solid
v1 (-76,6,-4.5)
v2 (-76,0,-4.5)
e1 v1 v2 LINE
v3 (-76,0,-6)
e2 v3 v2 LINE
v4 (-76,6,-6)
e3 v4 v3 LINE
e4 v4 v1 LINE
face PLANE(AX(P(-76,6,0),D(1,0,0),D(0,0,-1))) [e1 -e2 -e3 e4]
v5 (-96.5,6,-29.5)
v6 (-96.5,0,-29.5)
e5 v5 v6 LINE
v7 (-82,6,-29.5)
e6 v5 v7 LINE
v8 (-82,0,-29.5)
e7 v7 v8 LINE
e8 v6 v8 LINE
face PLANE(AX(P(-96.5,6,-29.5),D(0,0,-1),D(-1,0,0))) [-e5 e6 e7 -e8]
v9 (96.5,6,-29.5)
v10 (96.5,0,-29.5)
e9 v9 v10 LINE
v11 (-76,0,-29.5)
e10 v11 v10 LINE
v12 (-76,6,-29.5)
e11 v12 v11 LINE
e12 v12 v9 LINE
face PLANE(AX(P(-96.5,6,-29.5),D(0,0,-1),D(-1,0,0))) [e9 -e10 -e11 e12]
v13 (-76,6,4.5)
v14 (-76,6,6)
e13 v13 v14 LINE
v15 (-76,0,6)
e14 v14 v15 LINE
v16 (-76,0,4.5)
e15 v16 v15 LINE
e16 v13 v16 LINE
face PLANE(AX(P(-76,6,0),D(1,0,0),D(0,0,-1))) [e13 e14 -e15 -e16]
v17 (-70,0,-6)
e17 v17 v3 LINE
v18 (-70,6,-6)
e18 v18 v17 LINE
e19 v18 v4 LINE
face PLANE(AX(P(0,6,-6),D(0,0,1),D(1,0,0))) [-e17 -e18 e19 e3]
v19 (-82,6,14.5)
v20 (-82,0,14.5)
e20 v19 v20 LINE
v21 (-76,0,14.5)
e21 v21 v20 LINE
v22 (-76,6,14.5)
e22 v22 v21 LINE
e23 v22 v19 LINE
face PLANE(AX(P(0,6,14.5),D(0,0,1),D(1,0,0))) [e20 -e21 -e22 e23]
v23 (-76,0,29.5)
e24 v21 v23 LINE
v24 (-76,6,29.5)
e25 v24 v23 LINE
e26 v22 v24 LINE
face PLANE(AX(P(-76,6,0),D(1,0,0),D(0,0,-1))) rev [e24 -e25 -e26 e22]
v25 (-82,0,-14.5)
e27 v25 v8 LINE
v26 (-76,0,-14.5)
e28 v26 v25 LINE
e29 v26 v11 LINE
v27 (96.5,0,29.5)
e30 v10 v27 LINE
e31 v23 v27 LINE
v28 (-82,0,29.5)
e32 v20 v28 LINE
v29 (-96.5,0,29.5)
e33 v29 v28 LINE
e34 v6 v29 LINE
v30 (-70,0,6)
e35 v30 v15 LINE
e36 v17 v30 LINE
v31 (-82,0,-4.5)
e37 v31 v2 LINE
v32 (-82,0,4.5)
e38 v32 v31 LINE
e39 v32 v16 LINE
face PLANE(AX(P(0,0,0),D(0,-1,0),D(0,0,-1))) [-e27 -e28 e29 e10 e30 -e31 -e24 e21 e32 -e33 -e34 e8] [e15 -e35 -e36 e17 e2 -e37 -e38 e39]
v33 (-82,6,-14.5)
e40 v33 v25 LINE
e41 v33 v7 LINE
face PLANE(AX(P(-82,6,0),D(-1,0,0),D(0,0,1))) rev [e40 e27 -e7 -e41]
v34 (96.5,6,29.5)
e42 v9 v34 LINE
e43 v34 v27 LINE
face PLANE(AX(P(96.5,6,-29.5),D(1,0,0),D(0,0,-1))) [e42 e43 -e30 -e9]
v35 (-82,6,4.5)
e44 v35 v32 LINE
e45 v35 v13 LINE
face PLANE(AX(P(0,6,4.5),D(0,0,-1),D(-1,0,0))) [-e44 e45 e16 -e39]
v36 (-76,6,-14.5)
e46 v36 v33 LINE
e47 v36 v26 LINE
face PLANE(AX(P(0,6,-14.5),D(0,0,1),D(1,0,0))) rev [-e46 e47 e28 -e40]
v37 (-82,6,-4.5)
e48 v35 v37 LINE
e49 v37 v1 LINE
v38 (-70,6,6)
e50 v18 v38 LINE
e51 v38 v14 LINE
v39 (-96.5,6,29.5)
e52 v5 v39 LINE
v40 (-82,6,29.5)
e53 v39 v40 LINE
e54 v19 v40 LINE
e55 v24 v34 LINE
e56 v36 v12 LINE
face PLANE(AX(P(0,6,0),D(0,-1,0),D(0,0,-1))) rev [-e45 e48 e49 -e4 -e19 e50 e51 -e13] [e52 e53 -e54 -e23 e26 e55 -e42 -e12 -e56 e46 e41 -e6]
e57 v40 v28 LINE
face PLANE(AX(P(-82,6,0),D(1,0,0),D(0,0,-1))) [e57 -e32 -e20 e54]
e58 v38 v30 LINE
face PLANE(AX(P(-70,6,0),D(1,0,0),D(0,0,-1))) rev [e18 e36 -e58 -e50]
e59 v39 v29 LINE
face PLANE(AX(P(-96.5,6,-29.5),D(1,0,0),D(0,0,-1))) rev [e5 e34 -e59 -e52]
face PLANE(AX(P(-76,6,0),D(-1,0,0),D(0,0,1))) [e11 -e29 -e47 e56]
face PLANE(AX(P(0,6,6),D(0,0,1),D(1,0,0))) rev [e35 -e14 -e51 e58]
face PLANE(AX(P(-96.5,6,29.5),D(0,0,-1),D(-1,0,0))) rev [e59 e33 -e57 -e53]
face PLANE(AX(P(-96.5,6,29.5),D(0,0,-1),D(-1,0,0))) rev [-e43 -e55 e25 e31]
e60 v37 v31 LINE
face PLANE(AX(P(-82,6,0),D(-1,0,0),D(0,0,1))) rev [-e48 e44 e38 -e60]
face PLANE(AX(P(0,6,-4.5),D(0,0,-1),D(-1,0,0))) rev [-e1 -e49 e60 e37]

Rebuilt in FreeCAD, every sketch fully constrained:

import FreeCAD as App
import Part
import Sketcher

V = App.Vector

doc = App.newDocument("Part")
body = doc.addObject("PartDesign::Body", "Body")

# Sketch on XZ plane
sketch1 = body.newObject("Sketcher::SketchObject", "Sketch")
sketch1.AttachmentSupport = (doc.getObject("XZ_Plane"), [""])
sketch1.MapMode = "FlatFace"
sketch1.addGeometry(Part.LineSegment(V(-96, -30, 0), V(-96, 30, 0)), False)
sketch1.addGeometry(Part.LineSegment(V(-96, 30, 0), V(96, 30, 0)), False)
sketch1.addGeometry(Part.LineSegment(V(96, 30, 0), V(96, -30, 0)), False)
sketch1.addGeometry(Part.LineSegment(V(96, -30, 0), V(-96, -30, 0)), False)
sketch1.addConstraint(Sketcher.Constraint("Coincident", 0, 2, 1, 1))
sketch1.addConstraint(Sketcher.Constraint("Coincident", 1, 2, 2, 1))
sketch1.addConstraint(Sketcher.Constraint("Coincident", 2, 2, 3, 1))
sketch1.addConstraint(Sketcher.Constraint("Coincident", 3, 2, 0, 1))
sketch1.addConstraint(Sketcher.Constraint("Vertical", 0))
sketch1.addConstraint(Sketcher.Constraint("Horizontal", 1))
sketch1.addConstraint(Sketcher.Constraint("Vertical", 2))
sketch1.addConstraint(Sketcher.Constraint("Horizontal", 3))
sketch1.addConstraint(Sketcher.Constraint("Symmetric", 0, 2, 2, 2, -1, 1))
sketch1.addConstraint(Sketcher.Constraint("DistanceX", 1, 1, 1, 2, 193.0))
sketch1.addConstraint(Sketcher.Constraint("DistanceY", 0, 1, 0, 2, 59.0))
pad1 = body.newObject("PartDesign::Pad", "Pad")
pad1.Profile = sketch1
pad1.Length = 6
pad1.Reversed = True

# Sketch on XZ plane
sketch2 = body.newObject("Sketcher::SketchObject", "Sketch001")
sketch2.AttachmentSupport = (doc.getObject("XZ_Plane"), [""])
sketch2.MapMode = "FlatFace"
sketch2.addGeometry(Part.LineSegment(V(-76, -29.5, 0), V(-76, -14.5, 0)), False)
sketch2.addGeometry(Part.LineSegment(V(-76, -14.5, 0), V(-82, -14.5, 0)), False)
sketch2.addGeometry(Part.LineSegment(V(-82, -14.5, 0), V(-82, -29.5, 0)), False)
sketch2.addGeometry(Part.LineSegment(V(-82, -29.5, 0), V(-76, -29.5, 0)), False)
sketch2.addGeometry(Part.LineSegment(V(-76, 14.5, 0), V(-76, 29.5, 0)), False)
sketch2.addGeometry(Part.LineSegment(V(-76, 29.5, 0), V(-82, 29.5, 0)), False)
sketch2.addGeometry(Part.LineSegment(V(-82, 29.5, 0), V(-82, 14.5, 0)), False)
sketch2.addGeometry(Part.LineSegment(V(-82, 14.5, 0), V(-76, 14.5, 0)), False)
sketch2.addGeometry(Part.LineSegment(V(-76, 4.5, 0), V(-82, 4.5, 0)), False)
sketch2.addGeometry(Part.LineSegment(V(-82, 4.5, 0), V(-82, -4.5, 0)), False)
sketch2.addGeometry(Part.LineSegment(V(-82, -4.5, 0), V(-76, -4.5, 0)), False)
sketch2.addGeometry(Part.LineSegment(V(-76, -4.5, 0), V(-76, -6, 0)), False)
sketch2.addGeometry(Part.LineSegment(V(-76, -6, 0), V(-70, -6, 0)), False)
sketch2.addGeometry(Part.LineSegment(V(-70, -6, 0), V(-70, 6, 0)), False)
sketch2.addGeometry(Part.LineSegment(V(-70, 6, 0), V(-76, 6, 0)), False)
sketch2.addGeometry(Part.LineSegment(V(-76, 6, 0), V(-76, 4.5, 0)), False)
sketch2.addConstraint(Sketcher.Constraint("Coincident", 0, 2, 1, 1))
sketch2.addConstraint(Sketcher.Constraint("Coincident", 1, 2, 2, 1))
sketch2.addConstraint(Sketcher.Constraint("Coincident", 2, 2, 3, 1))
sketch2.addConstraint(Sketcher.Constraint("Coincident", 3, 2, 0, 1))
sketch2.addConstraint(Sketcher.Constraint("Coincident", 4, 2, 5, 1))
sketch2.addConstraint(Sketcher.Constraint("Coincident", 5, 2, 6, 1))
sketch2.addConstraint(Sketcher.Constraint("Coincident", 6, 2, 7, 1))
sketch2.addConstraint(Sketcher.Constraint("Coincident", 7, 2, 4, 1))
sketch2.addConstraint(Sketcher.Constraint("Coincident", 8, 2, 9, 1))
sketch2.addConstraint(Sketcher.Constraint("Coincident", 9, 2, 10, 1))
sketch2.addConstraint(Sketcher.Constraint("Coincident", 10, 2, 11, 1))
sketch2.addConstraint(Sketcher.Constraint("Coincident", 11, 2, 12, 1))
sketch2.addConstraint(Sketcher.Constraint("Coincident", 12, 2, 13, 1))
sketch2.addConstraint(Sketcher.Constraint("Coincident", 13, 2, 14, 1))
sketch2.addConstraint(Sketcher.Constraint("Coincident", 14, 2, 15, 1))
sketch2.addConstraint(Sketcher.Constraint("Coincident", 15, 2, 8, 1))
sketch2.addConstraint(Sketcher.Constraint("Vertical", 0))
sketch2.addConstraint(Sketcher.Constraint("Horizontal", 1))
sketch2.addConstraint(Sketcher.Constraint("Vertical", 2))
sketch2.addConstraint(Sketcher.Constraint("Horizontal", 3))
sketch2.addConstraint(Sketcher.Constraint("Vertical", 4))
sketch2.addConstraint(Sketcher.Constraint("Horizontal", 5))
sketch2.addConstraint(Sketcher.Constraint("Vertical", 6))
sketch2.addConstraint(Sketcher.Constraint("Horizontal", 7))
sketch2.addConstraint(Sketcher.Constraint("Horizontal", 8))
sketch2.addConstraint(Sketcher.Constraint("Vertical", 9))
sketch2.addConstraint(Sketcher.Constraint("Horizontal", 10))
sketch2.addConstraint(Sketcher.Constraint("Vertical", 11))
sketch2.addConstraint(Sketcher.Constraint("Horizontal", 12))
sketch2.addConstraint(Sketcher.Constraint("Vertical", 13))
sketch2.addConstraint(Sketcher.Constraint("Horizontal", 14))
sketch2.addConstraint(Sketcher.Constraint("Vertical", 15))
sketch2.addConstraint(Sketcher.Constraint("Symmetric", 3, 2, 4, 2, -1))
sketch2.addConstraint(Sketcher.Constraint("Symmetric", 1, 2, 6, 2, -1))
sketch2.addConstraint(Sketcher.Constraint("Symmetric", 11, 2, 14, 2, -1))
sketch2.addConstraint(Sketcher.Constraint("Vertical", 6, 2, 8, 2))
sketch2.addConstraint(Sketcher.Constraint("Vertical", 7, 2, 10, 2))
sketch2.addConstraint(Sketcher.Constraint("Equal", 10, 12))
sketch2.addConstraint(Sketcher.Constraint("Equal", 11, 15))
sketch2.addConstraint(Sketcher.Constraint("DistanceX", 1, 2, 1, 1, 6.0))
sketch2.addConstraint(Sketcher.Constraint("DistanceY", 0, 1, 0, 2, 15.0))
sketch2.addConstraint(Sketcher.Constraint("DistanceY", 9, 2, 9, 1, 9.0))
sketch2.addConstraint(Sketcher.Constraint("DistanceY", 13, 1, 13, 2, 12.0))
sketch2.addConstraint(Sketcher.Constraint("DistanceX", 0, 2, -1, 1, 76.0))
sketch2.addConstraint(Sketcher.Constraint("DistanceY", 0, 2, 4, 2, 44.0))
pocket1 = body.newObject("PartDesign::Pocket", "Pocket")
pocket1.Profile = sketch2
pocket1.Type = "ThroughAll"

# Sketch on XZ plane
sketch3 = body.newObject("Sketcher::SketchObject", "Sketch002")
sketch3.AttachmentSupport = (doc.getObject("XZ_Plane"), [""])
sketch3.MapMode = "FlatFace"
sketch3.addGeometry(Part.LineSegment(V(-241, -29, 0), V(-241, -70, 0)), False)
sketch3.addGeometry(Part.LineSegment(V(-241, -70, 0), V(-8, -70, 0)), False)
sketch3.addGeometry(Part.LineSegment(V(-8, -70, 0), V(-8, -29, 0)), False)
sketch3.addGeometry(Part.LineSegment(V(-8, -29, 0), V(-241, -29, 0)), False)
sketch3.addConstraint(Sketcher.Constraint("Coincident", 0, 2, 1, 1))
sketch3.addConstraint(Sketcher.Constraint("Coincident", 1, 2, 2, 1))
sketch3.addConstraint(Sketcher.Constraint("Coincident", 2, 2, 3, 1))
sketch3.addConstraint(Sketcher.Constraint("Coincident", 3, 2, 0, 1))
sketch3.addConstraint(Sketcher.Constraint("Vertical", 0))
sketch3.addConstraint(Sketcher.Constraint("Horizontal", 1))
sketch3.addConstraint(Sketcher.Constraint("Vertical", 2))
sketch3.addConstraint(Sketcher.Constraint("Horizontal", 3))
sketch3.addConstraint(Sketcher.Constraint("DistanceY", 2, 2, -1, 1, 29.5))
sketch3.addConstraint(Sketcher.Constraint("DistanceX", 1, 1, 1, 2, 232.885328))
sketch3.addConstraint(Sketcher.Constraint("DistanceY", 0, 2, 0, 1, 40.828336))
sketch3.addConstraint(Sketcher.Constraint("DistanceX", 0, 2, -1, 1, 241.329773))
pocket2 = body.newObject("PartDesign::Pocket", "Pocket001")
pocket2.Profile = sketch3
pocket2.Type = "ThroughAll"
doc.recompute()

mirrored = body.newObject("PartDesign::Mirrored", "Mirrored")
mirrored.Originals = [pocket2]
mirrored.MirrorPlane = (doc.getObject("XY_Plane"), [""])
body.Tip = mirrored
doc.recompute()

mirrored2 = body.newObject("PartDesign::Mirrored", "Mirrored001")
mirrored2.Originals = [pocket2]
mirrored2.MirrorPlane = (doc.getObject("YZ_Plane"), [""])
body.Tip = mirrored2

doc.recompute()
